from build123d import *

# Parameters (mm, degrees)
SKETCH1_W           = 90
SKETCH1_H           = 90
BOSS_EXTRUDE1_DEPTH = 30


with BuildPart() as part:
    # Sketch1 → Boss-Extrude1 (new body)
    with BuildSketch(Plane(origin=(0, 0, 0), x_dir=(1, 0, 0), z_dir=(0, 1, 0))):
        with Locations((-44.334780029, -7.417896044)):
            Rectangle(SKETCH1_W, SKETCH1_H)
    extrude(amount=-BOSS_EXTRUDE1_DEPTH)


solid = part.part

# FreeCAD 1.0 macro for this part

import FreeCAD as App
import Part
import Sketcher
from FreeCAD import Vector

doc = App.newDocument("Part")
body = doc.addObject("PartDesign::Body", "Body")

# Sketch on XZ plane
sketch1 = body.newObject("Sketcher::SketchObject", "Sketch")
sketch1.AttachmentSupport = (doc.getObject("XZ_Plane"), [""])
sketch1.MapMode = "FlatFace"
sketch1.addGeometry([
    Part.LineSegment(Vector(-89, -38, 0), Vector(-89, 52, 0)),
    Part.LineSegment(Vector(-89, 52, 0), Vector(1, 52, 0)),
    Part.LineSegment(Vector(1, 52, 0), Vector(1, -38, 0)),
    Part.LineSegment(Vector(1, -38, 0), Vector(-89, -38, 0)),
], False)
sketch1.addConstraint([
    Sketcher.Constraint("Coincident", 0, 2, 1, 1),
    Sketcher.Constraint("Coincident", 1, 2, 2, 1),
    Sketcher.Constraint("Coincident", 2, 2, 3, 1),
    Sketcher.Constraint("Coincident", 3, 2, 0, 1),
    Sketcher.Constraint("Vertical", 0),
    Sketcher.Constraint("Horizontal", 1),
    Sketcher.Constraint("Vertical", 2),
    Sketcher.Constraint("Horizontal", 3),
    Sketcher.Constraint("Equal", 3, 0),
    Sketcher.Constraint("DistanceX", 1, 1, 1, 2, 90.0),
    Sketcher.Constraint("DistanceX", 0, 2, -1, 1, 89.33478),
    Sketcher.Constraint("DistanceY", -1, 1, 0, 2, 52.417896),
])
pad1 = body.newObject("PartDesign::Pad", "Pad")
pad1.Profile = sketch1
pad1.Length = 30

doc.recompute()
